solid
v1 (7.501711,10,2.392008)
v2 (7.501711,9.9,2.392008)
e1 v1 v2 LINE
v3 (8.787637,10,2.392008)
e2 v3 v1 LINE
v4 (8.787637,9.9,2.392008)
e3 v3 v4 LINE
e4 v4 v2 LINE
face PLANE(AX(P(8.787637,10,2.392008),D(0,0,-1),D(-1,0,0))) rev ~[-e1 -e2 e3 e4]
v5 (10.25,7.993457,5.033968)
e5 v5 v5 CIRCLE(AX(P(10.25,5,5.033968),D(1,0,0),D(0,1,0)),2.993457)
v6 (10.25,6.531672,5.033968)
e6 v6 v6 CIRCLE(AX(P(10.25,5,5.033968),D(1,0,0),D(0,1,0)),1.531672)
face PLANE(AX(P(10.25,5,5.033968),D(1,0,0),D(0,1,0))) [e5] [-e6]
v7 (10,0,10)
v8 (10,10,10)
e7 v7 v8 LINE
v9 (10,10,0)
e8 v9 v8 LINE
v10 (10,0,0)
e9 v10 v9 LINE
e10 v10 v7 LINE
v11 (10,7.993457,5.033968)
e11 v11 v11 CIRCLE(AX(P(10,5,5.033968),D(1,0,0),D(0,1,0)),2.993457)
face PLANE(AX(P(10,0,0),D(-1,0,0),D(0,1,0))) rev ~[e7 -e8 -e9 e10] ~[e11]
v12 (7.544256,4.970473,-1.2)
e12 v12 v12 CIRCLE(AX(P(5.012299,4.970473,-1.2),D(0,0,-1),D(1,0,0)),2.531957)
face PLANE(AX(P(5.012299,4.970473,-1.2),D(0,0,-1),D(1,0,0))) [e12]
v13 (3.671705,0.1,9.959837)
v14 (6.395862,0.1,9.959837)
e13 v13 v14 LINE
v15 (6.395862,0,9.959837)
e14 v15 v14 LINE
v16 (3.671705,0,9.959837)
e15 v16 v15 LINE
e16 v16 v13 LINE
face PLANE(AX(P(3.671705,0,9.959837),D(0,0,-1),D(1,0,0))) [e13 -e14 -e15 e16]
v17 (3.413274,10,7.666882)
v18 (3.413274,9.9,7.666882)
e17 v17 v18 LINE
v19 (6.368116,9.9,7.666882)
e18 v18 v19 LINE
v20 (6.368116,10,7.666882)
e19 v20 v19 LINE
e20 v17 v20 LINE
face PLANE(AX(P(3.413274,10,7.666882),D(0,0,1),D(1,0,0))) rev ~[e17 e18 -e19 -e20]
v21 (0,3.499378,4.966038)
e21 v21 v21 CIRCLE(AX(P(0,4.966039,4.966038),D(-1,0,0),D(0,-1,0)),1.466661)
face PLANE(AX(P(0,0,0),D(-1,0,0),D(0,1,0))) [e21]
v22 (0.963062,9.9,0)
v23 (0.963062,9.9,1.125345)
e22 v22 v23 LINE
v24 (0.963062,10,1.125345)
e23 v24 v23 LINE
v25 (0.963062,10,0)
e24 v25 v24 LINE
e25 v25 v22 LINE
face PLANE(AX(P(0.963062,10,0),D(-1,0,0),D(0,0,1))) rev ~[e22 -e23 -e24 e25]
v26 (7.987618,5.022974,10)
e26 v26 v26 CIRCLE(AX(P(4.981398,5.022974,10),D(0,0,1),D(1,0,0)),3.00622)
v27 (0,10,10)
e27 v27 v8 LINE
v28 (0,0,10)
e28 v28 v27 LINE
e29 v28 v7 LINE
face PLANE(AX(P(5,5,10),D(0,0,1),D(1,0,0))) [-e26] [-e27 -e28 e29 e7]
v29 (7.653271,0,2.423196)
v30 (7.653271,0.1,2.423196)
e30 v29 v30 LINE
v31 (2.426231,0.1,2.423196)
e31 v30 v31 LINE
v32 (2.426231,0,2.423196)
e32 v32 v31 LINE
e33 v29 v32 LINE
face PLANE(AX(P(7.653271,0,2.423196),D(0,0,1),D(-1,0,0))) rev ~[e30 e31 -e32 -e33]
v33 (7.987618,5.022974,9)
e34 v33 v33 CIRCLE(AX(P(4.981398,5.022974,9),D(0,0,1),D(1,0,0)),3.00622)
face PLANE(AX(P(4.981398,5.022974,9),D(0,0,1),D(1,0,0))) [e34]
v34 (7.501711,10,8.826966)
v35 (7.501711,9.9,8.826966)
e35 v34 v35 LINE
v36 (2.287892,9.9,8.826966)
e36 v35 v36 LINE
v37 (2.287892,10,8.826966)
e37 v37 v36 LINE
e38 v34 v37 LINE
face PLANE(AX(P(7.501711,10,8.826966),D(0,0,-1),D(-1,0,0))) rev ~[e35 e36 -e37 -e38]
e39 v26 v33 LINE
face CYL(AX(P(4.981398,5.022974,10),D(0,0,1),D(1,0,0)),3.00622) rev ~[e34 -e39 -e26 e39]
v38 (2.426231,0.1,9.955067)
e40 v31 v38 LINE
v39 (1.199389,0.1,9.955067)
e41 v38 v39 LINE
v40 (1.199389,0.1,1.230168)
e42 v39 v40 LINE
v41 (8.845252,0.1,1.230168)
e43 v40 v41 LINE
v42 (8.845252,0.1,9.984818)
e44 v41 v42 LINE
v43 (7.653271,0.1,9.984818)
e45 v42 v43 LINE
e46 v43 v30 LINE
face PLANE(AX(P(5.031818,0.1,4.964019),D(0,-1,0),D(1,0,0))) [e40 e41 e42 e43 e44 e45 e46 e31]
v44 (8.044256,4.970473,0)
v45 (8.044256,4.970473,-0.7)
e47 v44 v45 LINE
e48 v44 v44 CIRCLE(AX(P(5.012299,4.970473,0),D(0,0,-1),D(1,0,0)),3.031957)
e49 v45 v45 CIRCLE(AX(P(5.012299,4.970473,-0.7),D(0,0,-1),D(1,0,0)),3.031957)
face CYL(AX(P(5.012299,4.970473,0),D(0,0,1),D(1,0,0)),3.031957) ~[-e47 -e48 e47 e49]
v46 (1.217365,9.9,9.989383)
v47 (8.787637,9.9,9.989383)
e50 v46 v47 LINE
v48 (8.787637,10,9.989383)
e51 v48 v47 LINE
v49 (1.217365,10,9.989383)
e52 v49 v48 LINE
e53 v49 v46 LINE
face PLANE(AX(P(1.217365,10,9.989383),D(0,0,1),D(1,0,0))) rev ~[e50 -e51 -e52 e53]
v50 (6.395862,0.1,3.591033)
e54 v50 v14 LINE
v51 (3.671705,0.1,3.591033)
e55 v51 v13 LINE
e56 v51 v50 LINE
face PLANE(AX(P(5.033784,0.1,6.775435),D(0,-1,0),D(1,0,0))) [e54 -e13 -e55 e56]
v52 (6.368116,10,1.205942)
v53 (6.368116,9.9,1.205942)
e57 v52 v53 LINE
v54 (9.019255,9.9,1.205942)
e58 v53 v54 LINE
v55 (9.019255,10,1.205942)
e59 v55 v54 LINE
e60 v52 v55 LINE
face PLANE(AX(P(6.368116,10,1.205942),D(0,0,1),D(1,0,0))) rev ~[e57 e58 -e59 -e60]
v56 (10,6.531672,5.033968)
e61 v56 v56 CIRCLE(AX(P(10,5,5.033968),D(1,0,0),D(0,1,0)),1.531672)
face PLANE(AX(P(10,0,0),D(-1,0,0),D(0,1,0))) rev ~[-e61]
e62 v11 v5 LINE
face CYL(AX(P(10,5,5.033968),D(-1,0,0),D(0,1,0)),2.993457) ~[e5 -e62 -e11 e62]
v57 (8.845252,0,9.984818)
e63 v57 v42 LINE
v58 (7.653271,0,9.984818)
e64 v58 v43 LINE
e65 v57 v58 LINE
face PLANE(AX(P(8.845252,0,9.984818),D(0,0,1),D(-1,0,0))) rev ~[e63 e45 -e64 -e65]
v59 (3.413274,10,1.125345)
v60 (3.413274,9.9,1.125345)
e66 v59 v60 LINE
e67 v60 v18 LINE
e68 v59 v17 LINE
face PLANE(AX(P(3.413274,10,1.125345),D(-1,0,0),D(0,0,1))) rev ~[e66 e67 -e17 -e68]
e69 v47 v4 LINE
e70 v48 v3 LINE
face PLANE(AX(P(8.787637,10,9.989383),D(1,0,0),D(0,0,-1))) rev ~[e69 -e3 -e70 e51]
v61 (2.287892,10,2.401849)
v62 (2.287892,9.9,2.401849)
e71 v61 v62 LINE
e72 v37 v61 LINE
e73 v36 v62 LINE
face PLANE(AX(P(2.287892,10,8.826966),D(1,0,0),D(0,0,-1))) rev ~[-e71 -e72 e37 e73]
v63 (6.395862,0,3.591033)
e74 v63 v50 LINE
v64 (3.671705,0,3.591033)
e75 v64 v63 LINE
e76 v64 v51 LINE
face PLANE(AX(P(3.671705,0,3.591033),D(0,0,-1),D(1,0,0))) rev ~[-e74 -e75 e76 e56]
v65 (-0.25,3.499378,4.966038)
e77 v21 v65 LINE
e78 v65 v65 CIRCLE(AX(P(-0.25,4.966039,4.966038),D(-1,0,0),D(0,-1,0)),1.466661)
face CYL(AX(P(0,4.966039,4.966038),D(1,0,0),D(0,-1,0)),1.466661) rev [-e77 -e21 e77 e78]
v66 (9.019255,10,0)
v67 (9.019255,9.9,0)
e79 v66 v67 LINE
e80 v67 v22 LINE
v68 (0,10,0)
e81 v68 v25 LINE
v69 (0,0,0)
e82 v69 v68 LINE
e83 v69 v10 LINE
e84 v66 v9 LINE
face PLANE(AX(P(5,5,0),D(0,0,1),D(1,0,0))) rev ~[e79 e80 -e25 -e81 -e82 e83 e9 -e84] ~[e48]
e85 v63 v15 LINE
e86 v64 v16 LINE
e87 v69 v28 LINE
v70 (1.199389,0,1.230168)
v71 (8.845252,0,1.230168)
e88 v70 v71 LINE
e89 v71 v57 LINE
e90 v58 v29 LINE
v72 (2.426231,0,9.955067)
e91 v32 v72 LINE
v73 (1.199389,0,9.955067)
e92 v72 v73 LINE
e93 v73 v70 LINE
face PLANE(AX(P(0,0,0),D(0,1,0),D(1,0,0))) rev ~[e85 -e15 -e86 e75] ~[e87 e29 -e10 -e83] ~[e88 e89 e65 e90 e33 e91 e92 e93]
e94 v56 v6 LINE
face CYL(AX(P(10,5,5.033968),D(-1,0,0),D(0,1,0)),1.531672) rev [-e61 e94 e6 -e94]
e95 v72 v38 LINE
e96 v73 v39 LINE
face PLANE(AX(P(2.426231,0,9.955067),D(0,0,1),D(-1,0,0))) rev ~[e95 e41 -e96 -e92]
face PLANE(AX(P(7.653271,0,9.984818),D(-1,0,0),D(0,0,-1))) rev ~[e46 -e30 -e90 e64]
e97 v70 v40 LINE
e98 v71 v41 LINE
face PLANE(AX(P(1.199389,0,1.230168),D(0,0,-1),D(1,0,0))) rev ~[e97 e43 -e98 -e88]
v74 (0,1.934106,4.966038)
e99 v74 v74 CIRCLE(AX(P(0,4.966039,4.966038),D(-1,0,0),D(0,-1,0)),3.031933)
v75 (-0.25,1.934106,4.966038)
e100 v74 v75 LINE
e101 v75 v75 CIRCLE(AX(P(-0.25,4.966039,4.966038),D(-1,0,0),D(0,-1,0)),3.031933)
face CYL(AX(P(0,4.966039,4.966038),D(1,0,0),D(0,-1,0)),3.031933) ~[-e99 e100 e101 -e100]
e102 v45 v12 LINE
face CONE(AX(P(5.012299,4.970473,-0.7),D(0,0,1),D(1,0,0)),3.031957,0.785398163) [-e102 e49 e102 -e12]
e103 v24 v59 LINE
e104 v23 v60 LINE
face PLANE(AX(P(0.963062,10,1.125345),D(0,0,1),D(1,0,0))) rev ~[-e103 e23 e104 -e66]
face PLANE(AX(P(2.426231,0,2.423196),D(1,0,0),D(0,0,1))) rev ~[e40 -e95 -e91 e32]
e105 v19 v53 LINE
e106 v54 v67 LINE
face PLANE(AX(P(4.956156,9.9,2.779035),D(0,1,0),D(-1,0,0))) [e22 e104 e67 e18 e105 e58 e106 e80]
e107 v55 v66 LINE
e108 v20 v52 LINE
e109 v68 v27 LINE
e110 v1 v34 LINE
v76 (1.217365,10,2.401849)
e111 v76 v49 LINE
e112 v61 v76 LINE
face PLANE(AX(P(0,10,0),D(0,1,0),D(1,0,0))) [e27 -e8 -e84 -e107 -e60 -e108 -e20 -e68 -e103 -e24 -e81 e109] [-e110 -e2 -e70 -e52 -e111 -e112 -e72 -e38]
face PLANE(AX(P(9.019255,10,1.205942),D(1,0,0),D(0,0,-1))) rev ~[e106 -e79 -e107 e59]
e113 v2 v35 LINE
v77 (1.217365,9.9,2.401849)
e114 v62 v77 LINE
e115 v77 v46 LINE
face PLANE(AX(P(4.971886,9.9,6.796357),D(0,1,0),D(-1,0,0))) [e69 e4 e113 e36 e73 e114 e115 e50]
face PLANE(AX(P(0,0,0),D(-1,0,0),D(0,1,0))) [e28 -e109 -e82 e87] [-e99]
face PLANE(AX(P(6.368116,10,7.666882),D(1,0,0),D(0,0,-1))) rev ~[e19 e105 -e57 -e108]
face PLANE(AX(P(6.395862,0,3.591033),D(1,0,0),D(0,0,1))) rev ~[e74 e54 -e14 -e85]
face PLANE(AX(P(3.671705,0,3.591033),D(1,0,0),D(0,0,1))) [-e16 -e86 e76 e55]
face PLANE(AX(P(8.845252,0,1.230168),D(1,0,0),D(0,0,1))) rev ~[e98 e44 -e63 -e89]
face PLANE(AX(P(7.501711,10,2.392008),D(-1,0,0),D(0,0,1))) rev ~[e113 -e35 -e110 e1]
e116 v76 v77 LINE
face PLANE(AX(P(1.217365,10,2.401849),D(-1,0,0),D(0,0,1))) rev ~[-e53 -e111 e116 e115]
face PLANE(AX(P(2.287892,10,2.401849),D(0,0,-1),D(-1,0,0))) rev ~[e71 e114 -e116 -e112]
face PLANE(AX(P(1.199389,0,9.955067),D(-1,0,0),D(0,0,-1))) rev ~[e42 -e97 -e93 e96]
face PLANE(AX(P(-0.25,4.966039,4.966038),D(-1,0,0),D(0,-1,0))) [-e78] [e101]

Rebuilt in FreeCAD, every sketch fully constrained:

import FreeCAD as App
import Part
import Sketcher
from FreeCAD import Vector
Q = App.Units.Quantity


def edges_at(feature, points):
    """Names of the edges that pass closest to the given points."""
    edges = feature.Shape.Edges
    near = lambda p: min(range(len(edges)), key=lambda i: edges[i].distToShape(Part.Vertex(*p))[0])
    return sorted({f"Edge{near(p) + 1}" for p in points})

doc = App.newDocument("Part")
body = doc.addObject("PartDesign::Body", "Body")

# Sketch on XY plane
sketch1 = doc.addObject("Sketcher::SketchObject", "Sketch")
body.addObject(sketch1)
sketch1.AttachmentSupport = (doc.XY_Plane, [""])
sketch1.MapMode = "FlatFace"
sketch1.addGeometry([
    Part.LineSegment(Vector(0, 10, 0), Vector(0, 0, 0)),
    Part.LineSegment(Vector(0, 0, 0), Vector(10, 0, 0)),
    Part.LineSegment(Vector(10, 0, 0), Vector(10, 10, 0)),
    Part.LineSegment(Vector(10, 10, 0), Vector(0, 10, 0)),
], False)
sketch1.addConstraint([
    Sketcher.Constraint("Coincident", 0, 2, 1, 1),
    Sketcher.Constraint("Coincident", 1, 2, 2, 1),
    Sketcher.Constraint("Coincident", 2, 2, 3, 1),
    Sketcher.Constraint("Coincident", 3, 2, 0, 1),
    Sketcher.Constraint("Vertical", 0),
    Sketcher.Constraint("Horizontal", 1),
    Sketcher.Constraint("Vertical", 2),
    Sketcher.Constraint("Horizontal", 3),
    Sketcher.Constraint("Coincident", 0, 2, -1, 1),
    Sketcher.Constraint("Equal", 3, 0),
    Sketcher.Constraint("DistanceX", 1, 1, 1, 2, Q("10 mm")),
])
pad1 = doc.addObject("PartDesign::Pad", "Pad")
body.addObject(pad1)
pad1.Profile = sketch1
pad1.Length = 10

# Sketch on YZ plane
sketch2 = doc.addObject("Sketcher::SketchObject", "Sketch001")
body.addObject(sketch2)
sketch2.AttachmentSupport = (doc.YZ_Plane, [""])
sketch2.MapMode = "FlatFace"
sketch2.addGeometry([
    Part.Circle(Vector(5, 5, 0), Vector(0, 0, 1), 3),
    Part.Circle(Vector(5, 5, 0), Vector(0, 0, 1), 1.5),
], False)
sketch2.addConstraint([
    Sketcher.Constraint("Coincident", 1, 3, 0, 3),
    Sketcher.Constraint("Diameter", 1, Q("2.933322 mm")),
    Sketcher.Constraint("Diameter", 0, Q("6.063866 mm")),
    Sketcher.Constraint("DistanceX", -1, 1, 0, 3, Q("4.966039 mm")),
    Sketcher.Constraint("DistanceY", -1, 1, 0, 3, Q("4.966038 mm")),
])
pad2 = doc.addObject("PartDesign::Pad", "Pad001")
body.addObject(pad2)
pad2.Profile = sketch2
pad2.Length = 0.25
pad2.Reversed = True

# Sketch on YZ plane
sketch3 = doc.addObject("Sketcher::SketchObject", "Sketch002")
body.addObject(sketch3)
sketch3.AttachmentSupport = (doc.YZ_Plane, [""])
sketch3.MapMode = "FlatFace"
sketch3.AttachmentOffset = App.Placement(Vector(0, 0, 10), App.Rotation())
sketch3.addGeometry([
    Part.Circle(Vector(5, 5, 0), Vector(0, 0, 1), 3),
    Part.Circle(Vector(5, 5, 0), Vector(0, 0, 1), 1.5),
], False)
sketch3.addConstraint([
    Sketcher.Constraint("Coincident", 1, 3, 0, 3),
    Sketcher.Constraint("DistanceX", -1, 1, 0, 3, Q("5 mm")),
    Sketcher.Constraint("Diameter", 0, Q("5.986914 mm")),
    Sketcher.Constraint("Diameter", 1, Q("3.063344 mm")),
    Sketcher.Constraint("DistanceY", -1, 1, 0, 3, Q("5.033968 mm")),
])
pad3 = doc.addObject("PartDesign::Pad", "Pad002")
body.addObject(pad3)
pad3.Profile = sketch3
pad3.Length = 0.25

# Sketch on XZ plane
sketch4 = doc.addObject("Sketcher::SketchObject", "Sketch003")
body.addObject(sketch4)
sketch4.AttachmentSupport = (doc.XZ_Plane, [""])
sketch4.MapMode = "FlatFace"
sketch4.addGeometry([
    Part.LineSegment(Vector(1.2, 10, 0), Vector(1.2, 1.2, 0)),  # 0
    Part.LineSegment(Vector(1.2, 1.2, 0), Vector(8.8, 1.2, 0)),  # 1
    Part.LineSegment(Vector(8.8, 1.2, 0), Vector(8.8, 10, 0)),  # 2
    Part.LineSegment(Vector(8.8, 10, 0), Vector(7.7, 10, 0)),  # 3
    Part.LineSegment(Vector(7.7, 10, 0), Vector(7.7, 2.4, 0)),  # 4
    Part.LineSegment(Vector(7.7, 2.4, 0), Vector(2.4, 2.4, 0)),  # 5
    Part.LineSegment(Vector(2.4, 2.4, 0), Vector(2.4, 10, 0)),  # 6
    Part.LineSegment(Vector(2.4, 10, 0), Vector(1.2, 10, 0)),  # 7
    Part.LineSegment(Vector(3.7, 10, 0), Vector(3.7, 3.6, 0)),  # 8
    Part.LineSegment(Vector(3.7, 3.6, 0), Vector(6.4, 3.6, 0)),  # 9
    Part.LineSegment(Vector(6.4, 3.6, 0), Vector(6.4, 10, 0)),  # 10
    Part.LineSegment(Vector(6.4, 10, 0), Vector(3.7, 10, 0)),  # 11
], False)
sketch4.addConstraint([
    Sketcher.Constraint("Coincident", 0, 2, 1, 1),
    Sketcher.Constraint("Coincident", 1, 2, 2, 1),
    Sketcher.Constraint("Coincident", 2, 2, 3, 1),
    Sketcher.Constraint("Coincident", 3, 2, 4, 1),
    Sketcher.Constraint("Coincident", 4, 2, 5, 1),
    Sketcher.Constraint("Coincident", 5, 2, 6, 1),
    Sketcher.Constraint("Coincident", 6, 2, 7, 1),
    Sketcher.Constraint("Coincident", 7, 2, 0, 1),
    Sketcher.Constraint("Coincident", 8, 2, 9, 1),
    Sketcher.Constraint("Coincident", 9, 2, 10, 1),
    Sketcher.Constraint("Coincident", 10, 2, 11, 1),
    Sketcher.Constraint("Coincident", 11, 2, 8, 1),
    Sketcher.Constraint("Vertical", 0),
    Sketcher.Constraint("Horizontal", 1),
    Sketcher.Constraint("Vertical", 2),
    Sketcher.Constraint("Horizontal", 3),
    Sketcher.Constraint("Vertical", 4),
    Sketcher.Constraint("Horizontal", 5),
    Sketcher.Constraint("Vertical", 6),
    Sketcher.Constraint("Horizontal", 7),
    Sketcher.Constraint("Vertical", 8),
    Sketcher.Constraint("Horizontal", 9),
    Sketcher.Constraint("Vertical", 10),
    Sketcher.Constraint("Horizontal", 11),
    Sketcher.Constraint("DistanceY", 0, 2, 0, 1, Q("8.724899 mm")),
    Sketcher.Constraint("DistanceX", 3, 2, 3, 1, Q("1.191981 mm")),
    Sketcher.Constraint("DistanceX", 5, 2, 5, 1, Q("5.22704 mm")),
    Sketcher.Constraint("DistanceY", 2, 1, 2, 2, Q("8.75465 mm")),
    Sketcher.Constraint("DistanceY", 6, 1, 6, 2, Q("7.531871 mm")),
    Sketcher.Constraint("DistanceX", 1, 1, 1, 2, Q("7.645863 mm")),
    Sketcher.Constraint("DistanceX", 9, 1, 9, 2, Q("2.724157 mm")),
    Sketcher.Constraint("DistanceY", 8, 2, 8, 1, Q("6.368804 mm")),
    Sketcher.Constraint("DistanceX", -1, 1, 0, 2, Q("1.199389 mm")),
    Sketcher.Constraint("DistanceY", -1, 1, 2, 2, Q("9.984818 mm")),
    Sketcher.Constraint("DistanceX", 9, 2, 4, 2, Q("1.257409 mm")),
    Sketcher.Constraint("DistanceY", 10, 2, 3, 2, Q("0.024981 mm")),
])
pocket1 = doc.addObject("PartDesign::Pocket", "Pocket")
body.addObject(pocket1)
pocket1.Profile = sketch4
pocket1.Length = 0.1

# Sketch on XZ plane
sketch5 = doc.addObject("Sketcher::SketchObject", "Sketch004")
body.addObject(sketch5)
sketch5.AttachmentSupport = (doc.XZ_Plane, [""])
sketch5.MapMode = "FlatFace"
sketch5.AttachmentOffset = App.Placement(Vector(0, 0, -10), App.Rotation())
sketch5.addGeometry([
    Part.LineSegment(Vector(1.2, 10, 0), Vector(8.8, 10, 0)),  # 0
    Part.LineSegment(Vector(8.8, 10, 0), Vector(8.8, 2.4, 0)),  # 1
    Part.LineSegment(Vector(8.8, 2.4, 0), Vector(7.5, 2.4, 0)),  # 2
    Part.LineSegment(Vector(7.5, 2.4, 0), Vector(7.5, 8.8, 0)),  # 3
    Part.LineSegment(Vector(7.5, 8.8, 0), Vector(2.3, 8.8, 0)),  # 4
    Part.LineSegment(Vector(2.3, 8.8, 0), Vector(2.3, 2.4, 0)),  # 5
    Part.LineSegment(Vector(2.3, 2.4, 0), Vector(1.2, 2.4, 0)),  # 6
    Part.LineSegment(Vector(1.2, 2.4, 0), Vector(1.2, 10, 0)),  # 7
    Part.LineSegment(Vector(9, 0, 0), Vector(1, 0, 0)),  # 8
    Part.LineSegment(Vector(1, 0, 0), Vector(1, 1.1, 0)),  # 9
    Part.LineSegment(Vector(1, 1.1, 0), Vector(3.4, 1.1, 0)),  # 10
    Part.LineSegment(Vector(3.4, 1.1, 0), Vector(3.4, 7.7, 0)),  # 11
    Part.LineSegment(Vector(3.4, 7.7, 0), Vector(6.4, 7.7, 0)),  # 12
    Part.LineSegment(Vector(6.4, 7.7, 0), Vector(6.4, 1.2, 0)),  # 13
    Part.LineSegment(Vector(6.4, 1.2, 0), Vector(9, 1.2, 0)),  # 14
    Part.LineSegment(Vector(9, 1.2, 0), Vector(9, 0, 0)),  # 15
], False)
sketch5.addConstraint([
    Sketcher.Constraint("Coincident", 0, 2, 1, 1),
    Sketcher.Constraint("Coincident", 1, 2, 2, 1),
    Sketcher.Constraint("Coincident", 2, 2, 3, 1),
    Sketcher.Constraint("Coincident", 3, 2, 4, 1),
    Sketcher.Constraint("Coincident", 4, 2, 5, 1),
    Sketcher.Constraint("Coincident", 5, 2, 6, 1),
    Sketcher.Constraint("Coincident", 6, 2, 7, 1),
    Sketcher.Constraint("Coincident", 7, 2, 0, 1),
    Sketcher.Constraint("Coincident", 8, 2, 9, 1),
    Sketcher.Constraint("Coincident", 9, 2, 10, 1),
    Sketcher.Constraint("Coincident", 10, 2, 11, 1),
    Sketcher.Constraint("Coincident", 11, 2, 12, 1),
    Sketcher.Constraint("Coincident", 12, 2, 13, 1),
    Sketcher.Constraint("Coincident", 13, 2, 14, 1),
    Sketcher.Constraint("Coincident", 14, 2, 15, 1),
    Sketcher.Constraint("Coincident", 15, 2, 8, 1),
    Sketcher.Constraint("Horizontal", 0),
    Sketcher.Constraint("Vertical", 1),
    Sketcher.Constraint("Horizontal", 2),
    Sketcher.Constraint("Vertical", 3),
    Sketcher.Constraint("Horizontal", 4),
    Sketcher.Constraint("Vertical", 5),
    Sketcher.Constraint("Horizontal", 6),
    Sketcher.Constraint("Vertical", 7),
    Sketcher.Constraint("Horizontal", 8),
    Sketcher.Constraint("Vertical", 9),
    Sketcher.Constraint("Horizontal", 10),
    Sketcher.Constraint("Vertical", 11),
    Sketcher.Constraint("Horizontal", 12),
    Sketcher.Constraint("Vertical", 13),
    Sketcher.Constraint("Horizontal", 14),
    Sketcher.Constraint("Vertical", 15),
    Sketcher.Constraint("PointOnObject", 8, 2, -1),
    Sketcher.Constraint("DistanceX", 4, 2, 4, 1, Q("5.213819 mm")),
    Sketcher.Constraint("DistanceX", 10, 1, 10, 2, Q("2.450212 mm")),
    Sketcher.Constraint("DistanceX", 12, 1, 12, 2, Q("2.954842 mm")),
    Sketcher.Constraint("DistanceX", 14, 1, 14, 2, Q("2.651139 mm")),
    Sketcher.Constraint("DistanceY", 13, 2, 13, 1, Q("6.46094 mm")),
    Sketcher.Constraint("DistanceY", 11, 2, 7, 2, Q("2.322501 mm")),
    Sketcher.Constraint("DistanceX", 0, 1, 0, 2, Q("7.570272 mm")),
    Sketcher.Constraint("DistanceX", 2, 2, 2, 1, Q("1.285926 mm")),
    Sketcher.Constraint("DistanceY", 1, 2, 1, 1, Q("7.597375 mm")),
    Sketcher.Constraint("DistanceY", 3, 1, 3, 2, Q("6.434958 mm")),
    Sketcher.Constraint("DistanceY", 5, 2, 5, 1, Q("6.425117 mm")),
    Sketcher.Constraint("DistanceY", 9, 1, 9, 2, Q("1.125345 mm")),
    Sketcher.Constraint("DistanceY", 11, 1, 11, 2, Q("6.541537 mm")),
    Sketcher.Constraint("DistanceX", -1, 1, 2, 2, Q("7.501711 mm")),
    Sketcher.Constraint("DistanceX", -1, 1, 8, 2, Q("0.963062 mm")),
])
pocket2 = doc.addObject("PartDesign::Pocket", "Pocket001")
body.addObject(pocket2)
pocket2.Profile = sketch5
pocket2.Length = 0.1
pocket2.Reversed = True

# Sketch on XY plane
sketch6 = doc.addObject("Sketcher::SketchObject", "Sketch005")
body.addObject(sketch6)
sketch6.AttachmentSupport = (doc.XY_Plane, [""])
sketch6.MapMode = "FlatFace"
sketch6.addGeometry(Part.Circle(Vector(5, 5, 0), Vector(0, 0, 1), 3), False)
sketch6.addConstraint([
    Sketcher.Constraint("Diameter", 0, Q("6.063914 mm")),
    Sketcher.Constraint("DistanceX", -1, 1, 0, 3, Q("5.012299 mm")),
    Sketcher.Constraint("DistanceY", -1, 1, 0, 3, Q("4.970473 mm")),
])
pad4 = doc.addObject("PartDesign::Pad", "Pad003")
body.addObject(pad4)
pad4.Profile = sketch6
pad4.Length = 1.2
pad4.Reversed = True
doc.recompute()

chamfer = doc.addObject("PartDesign::Chamfer", "Chamfer")
body.addObject(chamfer)
chamfer.Base = (pad4, edges_at(pad4, [(1.98, 4.97, -1.2)]))
chamfer.Size = 0.5

# Sketch on XY plane
sketch7 = doc.addObject("Sketcher::SketchObject", "Sketch006")
body.addObject(sketch7)
sketch7.AttachmentSupport = (doc.XY_Plane, [""])
sketch7.MapMode = "FlatFace"
sketch7.AttachmentOffset = App.Placement(Vector(0, 0, 10), App.Rotation())
sketch7.addGeometry(Part.Circle(Vector(5, 5, 0), Vector(0, 0, 1), 3), False)
sketch7.addConstraint([
    Sketcher.Constraint("Diameter", 0, Q("6.01244 mm")),
    Sketcher.Constraint("DistanceX", -1, 1, 0, 3, Q("4.981398 mm")),
    Sketcher.Constraint("DistanceY", -1, 1, 0, 3, Q("5.022974 mm")),
])
pocket3 = doc.addObject("PartDesign::Pocket", "Pocket002")
body.addObject(pocket3)
pocket3.Profile = sketch7
pocket3.Length = 1

doc.recompute()
